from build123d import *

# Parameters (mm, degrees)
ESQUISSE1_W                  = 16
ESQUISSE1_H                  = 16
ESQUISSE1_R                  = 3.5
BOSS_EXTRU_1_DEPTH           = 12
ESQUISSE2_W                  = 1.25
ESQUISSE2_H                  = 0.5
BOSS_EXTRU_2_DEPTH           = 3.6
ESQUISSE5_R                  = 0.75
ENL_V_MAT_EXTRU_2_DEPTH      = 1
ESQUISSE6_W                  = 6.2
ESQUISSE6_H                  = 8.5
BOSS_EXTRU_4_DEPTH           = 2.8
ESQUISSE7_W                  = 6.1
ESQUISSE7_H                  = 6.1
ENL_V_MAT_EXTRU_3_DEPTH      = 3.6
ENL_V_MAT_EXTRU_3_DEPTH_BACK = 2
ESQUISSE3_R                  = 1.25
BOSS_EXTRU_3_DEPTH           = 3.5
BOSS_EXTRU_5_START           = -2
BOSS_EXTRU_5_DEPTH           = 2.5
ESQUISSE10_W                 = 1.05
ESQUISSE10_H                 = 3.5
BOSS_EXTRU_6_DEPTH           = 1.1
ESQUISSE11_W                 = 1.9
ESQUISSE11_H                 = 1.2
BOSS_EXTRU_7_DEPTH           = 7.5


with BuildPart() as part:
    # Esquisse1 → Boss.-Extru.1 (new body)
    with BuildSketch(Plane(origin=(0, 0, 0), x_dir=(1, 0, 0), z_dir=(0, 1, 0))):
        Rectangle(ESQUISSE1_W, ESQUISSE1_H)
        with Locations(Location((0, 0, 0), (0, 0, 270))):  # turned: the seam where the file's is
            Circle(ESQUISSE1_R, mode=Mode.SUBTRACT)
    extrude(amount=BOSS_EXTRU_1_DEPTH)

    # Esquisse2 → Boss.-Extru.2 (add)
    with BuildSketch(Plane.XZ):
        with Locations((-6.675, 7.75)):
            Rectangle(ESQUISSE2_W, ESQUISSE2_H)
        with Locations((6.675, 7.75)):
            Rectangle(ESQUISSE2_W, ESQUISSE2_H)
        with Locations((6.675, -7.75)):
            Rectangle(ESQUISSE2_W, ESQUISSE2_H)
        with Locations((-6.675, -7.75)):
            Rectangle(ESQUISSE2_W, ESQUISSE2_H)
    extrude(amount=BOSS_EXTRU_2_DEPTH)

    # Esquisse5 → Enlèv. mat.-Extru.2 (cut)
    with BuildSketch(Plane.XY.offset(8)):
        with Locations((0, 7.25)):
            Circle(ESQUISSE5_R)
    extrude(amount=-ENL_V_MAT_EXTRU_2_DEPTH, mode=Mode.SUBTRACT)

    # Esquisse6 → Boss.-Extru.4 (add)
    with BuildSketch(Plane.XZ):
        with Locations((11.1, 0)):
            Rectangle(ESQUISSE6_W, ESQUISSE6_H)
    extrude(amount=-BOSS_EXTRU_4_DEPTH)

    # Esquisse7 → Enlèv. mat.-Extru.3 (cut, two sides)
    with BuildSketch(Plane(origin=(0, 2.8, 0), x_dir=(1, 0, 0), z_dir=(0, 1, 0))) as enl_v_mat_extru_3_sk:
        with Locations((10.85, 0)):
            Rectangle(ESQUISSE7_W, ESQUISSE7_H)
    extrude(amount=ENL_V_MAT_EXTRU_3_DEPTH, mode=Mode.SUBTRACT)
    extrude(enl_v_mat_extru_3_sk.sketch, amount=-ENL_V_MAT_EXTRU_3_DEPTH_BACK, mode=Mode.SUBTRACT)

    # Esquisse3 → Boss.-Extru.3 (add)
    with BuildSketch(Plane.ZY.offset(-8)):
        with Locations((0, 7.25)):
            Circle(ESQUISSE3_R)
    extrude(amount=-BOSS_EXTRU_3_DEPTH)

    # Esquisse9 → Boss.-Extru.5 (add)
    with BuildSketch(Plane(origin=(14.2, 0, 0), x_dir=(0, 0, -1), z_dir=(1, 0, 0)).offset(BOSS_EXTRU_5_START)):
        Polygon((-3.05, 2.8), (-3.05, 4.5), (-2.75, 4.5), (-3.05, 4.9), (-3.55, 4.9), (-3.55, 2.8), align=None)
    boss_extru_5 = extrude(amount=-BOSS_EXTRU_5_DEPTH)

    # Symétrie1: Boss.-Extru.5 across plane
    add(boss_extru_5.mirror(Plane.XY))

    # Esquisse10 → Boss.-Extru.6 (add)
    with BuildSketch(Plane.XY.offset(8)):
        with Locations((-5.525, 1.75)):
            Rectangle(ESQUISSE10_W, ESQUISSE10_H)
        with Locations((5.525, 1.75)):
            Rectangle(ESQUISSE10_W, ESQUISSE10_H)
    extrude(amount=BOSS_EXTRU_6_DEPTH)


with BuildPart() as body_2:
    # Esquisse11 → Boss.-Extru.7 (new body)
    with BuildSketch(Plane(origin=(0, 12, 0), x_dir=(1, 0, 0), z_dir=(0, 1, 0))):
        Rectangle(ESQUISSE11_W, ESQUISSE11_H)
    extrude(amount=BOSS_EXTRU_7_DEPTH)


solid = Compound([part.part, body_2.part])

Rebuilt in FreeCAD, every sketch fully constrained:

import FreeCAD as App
import Part
import Sketcher

doc = App.newDocument("Part")
body = doc.addObject("PartDesign::Body", "Body")

sketch1 = doc.addObject("Sketcher::SketchObject", "Sketch")
body.addObject(sketch1)
sketch1.AttachmentSupport = (doc.XZ_Plane, [""])
sketch1.MapMode = "FlatFace"
sketch1.addGeometry([
    Part.LineSegment(App.Vector(-8, -8, 0), App.Vector(-8, 8, 0)),
    Part.LineSegment(App.Vector(-8, 8, 0), App.Vector(8, 8, 0)),
    Part.LineSegment(App.Vector(8, 8, 0), App.Vector(8, -8, 0)),
    Part.LineSegment(App.Vector(8, -8, 0), App.Vector(-8, -8, 0)),
    Part.Circle(App.Vector(0, 0, 0), App.Vector(0, 0, 1), 3.5),
], False)
sketch1.addConstraint([
    Sketcher.Constraint("Coincident", 0, 2, 1, 1),
    Sketcher.Constraint("Coincident", 1, 2, 2, 1),
    Sketcher.Constraint("Coincident", 2, 2, 3, 1),
    Sketcher.Constraint("Coincident", 3, 2, 0, 1),
    Sketcher.Constraint("Vertical", 0),
    Sketcher.Constraint("Horizontal", 1),
    Sketcher.Constraint("Vertical", 2),
    Sketcher.Constraint("Horizontal", 3),
    Sketcher.Constraint("Coincident", 4, 3, -1, 1),
    Sketcher.Constraint("Symmetric", 0, 2, 2, 2, -1, 1),
    Sketcher.Constraint("Equal", 3, 0),
    Sketcher.Constraint("Diameter", 4, 7.0),
    Sketcher.Constraint("DistanceX", 1, 1, 1, 2, 16.0),
])
pad1 = doc.addObject("PartDesign::Pad", "Pad")
body.addObject(pad1)
pad1.Profile = sketch1
pad1.Length = 12
pad1.Reversed = True

sketch2 = doc.addObject("Sketcher::SketchObject", "Sketch001")
body.addObject(sketch2)
sketch2.AttachmentSupport = (doc.XZ_Plane, [""])
sketch2.MapMode = "FlatFace"
sketch2.addGeometry([
    Part.LineSegment(App.Vector(-7.3, 8, 0), App.Vector(-7.3, 7.5, 0)),
    Part.LineSegment(App.Vector(-7.3, 7.5, 0), App.Vector(-6.05, 7.5, 0)),
    Part.LineSegment(App.Vector(-6.05, 7.5, 0), App.Vector(-6.05, 8, 0)),
    Part.LineSegment(App.Vector(-6.05, 8, 0), App.Vector(-7.3, 8, 0)),
    Part.LineSegment(App.Vector(6.05, 8, 0), App.Vector(6.05, 7.5, 0)),
    Part.LineSegment(App.Vector(6.05, 7.5, 0), App.Vector(7.3, 7.5, 0)),
    Part.LineSegment(App.Vector(7.3, 7.5, 0), App.Vector(7.3, 8, 0)),
    Part.LineSegment(App.Vector(7.3, 8, 0), App.Vector(6.05, 8, 0)),
    Part.LineSegment(App.Vector(6.05, -7.5, 0), App.Vector(6.05, -8, 0)),
    Part.LineSegment(App.Vector(6.05, -8, 0), App.Vector(7.3, -8, 0)),
    Part.LineSegment(App.Vector(7.3, -8, 0), App.Vector(7.3, -7.5, 0)),
    Part.LineSegment(App.Vector(7.3, -7.5, 0), App.Vector(6.05, -7.5, 0)),
    Part.LineSegment(App.Vector(-7.3, -7.5, 0), App.Vector(-7.3, -8, 0)),
    Part.LineSegment(App.Vector(-7.3, -8, 0), App.Vector(-6.05, -8, 0)),
    Part.LineSegment(App.Vector(-6.05, -8, 0), App.Vector(-6.05, -7.5, 0)),
    Part.LineSegment(App.Vector(-6.05, -7.5, 0), App.Vector(-7.3, -7.5, 0)),
], False)
sketch2.addConstraint([
    Sketcher.Constraint("Coincident", 0, 2, 1, 1),
    Sketcher.Constraint("Coincident", 1, 2, 2, 1),
    Sketcher.Constraint("Coincident", 2, 2, 3, 1),
    Sketcher.Constraint("Coincident", 3, 2, 0, 1),
    Sketcher.Constraint("Coincident", 4, 2, 5, 1),
    Sketcher.Constraint("Coincident", 5, 2, 6, 1),
    Sketcher.Constraint("Coincident", 6, 2, 7, 1),
    Sketcher.Constraint("Coincident", 7, 2, 4, 1),
    Sketcher.Constraint("Coincident", 8, 2, 9, 1),
    Sketcher.Constraint("Coincident", 9, 2, 10, 1),
    Sketcher.Constraint("Coincident", 10, 2, 11, 1),
    Sketcher.Constraint("Coincident", 11, 2, 8, 1),
    Sketcher.Constraint("Coincident", 12, 2, 13, 1),
    Sketcher.Constraint("Coincident", 13, 2, 14, 1),
    Sketcher.Constraint("Coincident", 14, 2, 15, 1),
    Sketcher.Constraint("Coincident", 15, 2, 12, 1),
    Sketcher.Constraint("Vertical", 0),
    Sketcher.Constraint("Horizontal", 1),
    Sketcher.Constraint("Vertical", 2),
    Sketcher.Constraint("Horizontal", 3),
    Sketcher.Constraint("Vertical", 4),
    Sketcher.Constraint("Horizontal", 5),
    Sketcher.Constraint("Vertical", 6),
    Sketcher.Constraint("Horizontal", 7),
    Sketcher.Constraint("Vertical", 8),
    Sketcher.Constraint("Horizontal", 9),
    Sketcher.Constraint("Vertical", 10),
    Sketcher.Constraint("Horizontal", 11),
    Sketcher.Constraint("Vertical", 12),
    Sketcher.Constraint("Horizontal", 13),
    Sketcher.Constraint("Vertical", 14),
    Sketcher.Constraint("Horizontal", 15),
    Sketcher.Constraint("Symmetric", 2, 2, 8, 2, -1, 1),
    Sketcher.Constraint("Symmetric", 0, 2, 10, 2, -1, 1),
    Sketcher.Constraint("Symmetric", 6, 2, 12, 2, -1, 1),
    Sketcher.Constraint("Symmetric", 4, 2, 14, 2, -1, 1),
    Sketcher.Constraint("Symmetric", 1, 2, 4, 2, -2),
    Sketcher.Constraint("Symmetric", 3, 2, 6, 2, -2),
    Sketcher.Constraint("DistanceY", 0, 2, 0, 1, 0.5),
    Sketcher.Constraint("DistanceY", -1, 1, 2, 2, 8.0),
    Sketcher.Constraint("DistanceX", 1, 1, 1, 2, 1.25),
    Sketcher.Constraint("DistanceX", 0, 2, -1, 1, 7.3),
])
pad2 = doc.addObject("PartDesign::Pad", "Pad001")
body.addObject(pad2)
pad2.Profile = sketch2
pad2.Length = 3.6

sketch3 = doc.addObject("Sketcher::SketchObject", "Sketch002")
body.addObject(sketch3)
sketch3.AttachmentSupport = (doc.XY_Plane, [""])
sketch3.MapMode = "FlatFace"
sketch3.AttachmentOffset = App.Placement(App.Vector(0, 0, 8), App.Rotation())
sketch3.addGeometry(Part.Circle(App.Vector(0, 7.25, 0), App.Vector(0, 0, 1), 0.75), False)
sketch3.addConstraint([
    Sketcher.Constraint("PointOnObject", 0, 3, -2),
    Sketcher.Constraint("Diameter", 0, 1.5),
    Sketcher.Constraint("DistanceY", -1, 1, 0, 3, 7.25),
])
pocket1 = doc.addObject("PartDesign::Pocket", "Pocket")
body.addObject(pocket1)
pocket1.Profile = sketch3
pocket1.Length = 1

sketch4 = doc.addObject("Sketcher::SketchObject", "Sketch003")
body.addObject(sketch4)
sketch4.AttachmentSupport = (doc.XZ_Plane, [""])
sketch4.MapMode = "FlatFace"
sketch4.addGeometry([
    Part.LineSegment(App.Vector(8, 4.25, 0), App.Vector(8, -4.25, 0)),
    Part.LineSegment(App.Vector(8, -4.25, 0), App.Vector(14.2, -4.25, 0)),
    Part.LineSegment(App.Vector(14.2, -4.25, 0), App.Vector(14.2, 4.25, 0)),
    Part.LineSegment(App.Vector(14.2, 4.25, 0), App.Vector(8, 4.25, 0)),
], False)
sketch4.addConstraint([
    Sketcher.Constraint("Coincident", 0, 2, 1, 1),
    Sketcher.Constraint("Coincident", 1, 2, 2, 1),
    Sketcher.Constraint("Coincident", 2, 2, 3, 1),
    Sketcher.Constraint("Coincident", 3, 2, 0, 1),
    Sketcher.Constraint("Vertical", 0),
    Sketcher.Constraint("Horizontal", 1),
    Sketcher.Constraint("Vertical", 2),
    Sketcher.Constraint("Horizontal", 3),
    Sketcher.Constraint("DistanceX", 1, 1, 1, 2, 6.2),
    Sketcher.Constraint("DistanceY", 0, 2, 0, 1, 8.5),
    Sketcher.Constraint("DistanceX", -1, 1, 0, 2, 8.0),
    Sketcher.Constraint("DistanceY", 0, 2, -1, 1, 4.25),
])
pad3 = doc.addObject("PartDesign::Pad", "Pad002")
body.addObject(pad3)
pad3.Profile = sketch4
pad3.Length = 2.8
pad3.Reversed = True

sketch5 = doc.addObject("Sketcher::SketchObject", "Sketch004")
body.addObject(sketch5)
sketch5.AttachmentSupport = (doc.XZ_Plane, [""])
sketch5.MapMode = "FlatFace"
sketch5.AttachmentOffset = App.Placement(App.Vector(0, 0, -2.8), App.Rotation())
sketch5.addGeometry([
    Part.LineSegment(App.Vector(7.8, -3.05, 0), App.Vector(7.8, 3.05, 0)),
    Part.LineSegment(App.Vector(7.8, 3.05, 0), App.Vector(13.9, 3.05, 0)),
    Part.LineSegment(App.Vector(13.9, 3.05, 0), App.Vector(13.9, -3.05, 0)),
    Part.LineSegment(App.Vector(13.9, -3.05, 0), App.Vector(7.8, -3.05, 0)),
], False)
sketch5.addConstraint([
    Sketcher.Constraint("Coincident", 0, 2, 1, 1),
    Sketcher.Constraint("Coincident", 1, 2, 2, 1),
    Sketcher.Constraint("Coincident", 2, 2, 3, 1),
    Sketcher.Constraint("Coincident", 3, 2, 0, 1),
    Sketcher.Constraint("Vertical", 0),
    Sketcher.Constraint("Horizontal", 1),
    Sketcher.Constraint("Vertical", 2),
    Sketcher.Constraint("Horizontal", 3),
    Sketcher.Constraint("Equal", 3, 0),
    Sketcher.Constraint("DistanceX", 1, 1, 1, 2, 6.1),
    Sketcher.Constraint("DistanceX", -1, 1, 0, 2, 7.8),
    Sketcher.Constraint("DistanceY", -1, 1, 0, 2, 3.05),
])
pocket2 = doc.addObject("PartDesign::Pocket", "Pocket001")
body.addObject(pocket2)
pocket2.Profile = sketch5
pocket2.Type = "TwoLengths"
pocket2.Length = 3.6
pocket2.Length2 = 2

sketch6 = doc.addObject("Sketcher::SketchObject", "Sketch005")
body.addObject(sketch6)
sketch6.AttachmentSupport = (doc.YZ_Plane, [""])
sketch6.MapMode = "FlatFace"
sketch6.AttachmentOffset = App.Placement(App.Vector(0, 0, 8), App.Rotation())
sketch6.addGeometry(Part.Circle(App.Vector(7.25, 0, 0), App.Vector(0, 0, 1), 1.25), False)
sketch6.addConstraint([
    Sketcher.Constraint("PointOnObject", 0, 3, -1),
    Sketcher.Constraint("Diameter", 0, 2.5),
    Sketcher.Constraint("DistanceX", -1, 1, 0, 3, 7.25),
])
pad4 = doc.addObject("PartDesign::Pad", "Pad003")
body.addObject(pad4)
pad4.Profile = sketch6
pad4.Length = 3.5

sketch7 = doc.addObject("Sketcher::SketchObject", "Sketch006")
body.addObject(sketch7)
sketch7.AttachmentSupport = (doc.YZ_Plane, [""])
sketch7.MapMode = "FlatFace"
sketch7.AttachmentOffset = App.Placement(App.Vector(0, 0, 12.2), App.Rotation())
sketch7.addGeometry([
    Part.LineSegment(App.Vector(2.8, 3.05, 0), App.Vector(4.5, 3.05, 0)),
    Part.LineSegment(App.Vector(4.5, 3.05, 0), App.Vector(4.5, 2.75, 0)),
    Part.LineSegment(App.Vector(4.5, 2.75, 0), App.Vector(4.9, 3.05, 0)),
    Part.LineSegment(App.Vector(4.9, 3.05, 0), App.Vector(4.9, 3.55, 0)),
    Part.LineSegment(App.Vector(4.9, 3.55, 0), App.Vector(2.8, 3.55, 0)),
    Part.LineSegment(App.Vector(2.8, 3.55, 0), App.Vector(2.8, 3.05, 0)),
], False)
sketch7.addConstraint([
    Sketcher.Constraint("Coincident", 0, 2, 1, 1),
    Sketcher.Constraint("Coincident", 1, 2, 2, 1),
    Sketcher.Constraint("Coincident", 2, 2, 3, 1),
    Sketcher.Constraint("Coincident", 3, 2, 4, 1),
    Sketcher.Constraint("Coincident", 4, 2, 5, 1),
    Sketcher.Constraint("Coincident", 5, 2, 0, 1),
    Sketcher.Constraint("Horizontal", 0),
    Sketcher.Constraint("Vertical", 1),
    Sketcher.Constraint("Vertical", 3),
    Sketcher.Constraint("Horizontal", 4),
    Sketcher.Constraint("Vertical", 5),
    Sketcher.Constraint("Horizontal", 0, 2, 2, 2),
    Sketcher.Constraint("DistanceX", 0, 1, 0, 2, 1.7),
    Sketcher.Constraint("DistanceX", 4, 2, 4, 1, 2.1),
    Sketcher.Constraint("DistanceY", 1, 2, 1, 1, 0.3),
    Sketcher.Constraint("DistanceY", 3, 1, 3, 2, 0.5),
    Sketcher.Constraint("DistanceX", -1, 1, 0, 2, 4.5),
    Sketcher.Constraint("DistanceY", -1, 1, 0, 2, 3.05),
])
pad5 = doc.addObject("PartDesign::Pad", "Pad004")
body.addObject(pad5)
pad5.Profile = sketch7
pad5.Length = 2.5
pad5.Reversed = True
doc.recompute()

mirrored = doc.addObject("PartDesign::Mirrored", "Mirrored")
body.addObject(mirrored)
mirrored.Originals = [pad5]
mirrored.MirrorPlane = (doc.XY_Plane, [""])
body.Tip = mirrored

sketch8 = doc.addObject("Sketcher::SketchObject", "Sketch007")
body.addObject(sketch8)
sketch8.AttachmentSupport = (doc.XY_Plane, [""])
sketch8.MapMode = "FlatFace"
sketch8.AttachmentOffset = App.Placement(App.Vector(0, 0, 8), App.Rotation())
sketch8.addGeometry([
    Part.LineSegment(App.Vector(-6.05, 3.5, 0), App.Vector(-6.05, 0, 0)),
    Part.LineSegment(App.Vector(-6.05, 0, 0), App.Vector(-5, 0, 0)),
    Part.LineSegment(App.Vector(-5, 0, 0), App.Vector(-5, 3.5, 0)),
    Part.LineSegment(App.Vector(-5, 3.5, 0), App.Vector(-6.05, 3.5, 0)),
    Part.LineSegment(App.Vector(5, 3.5, 0), App.Vector(5, 0, 0)),
    Part.LineSegment(App.Vector(5, 0, 0), App.Vector(6.05, 0, 0)),
    Part.LineSegment(App.Vector(6.05, 0, 0), App.Vector(6.05, 3.5, 0)),
    Part.LineSegment(App.Vector(6.05, 3.5, 0), App.Vector(5, 3.5, 0)),
], False)
sketch8.addConstraint([
    Sketcher.Constraint("Coincident", 0, 2, 1, 1),
    Sketcher.Constraint("Coincident", 1, 2, 2, 1),
    Sketcher.Constraint("Coincident", 2, 2, 3, 1),
    Sketcher.Constraint("Coincident", 3, 2, 0, 1),
    Sketcher.Constraint("Coincident", 4, 2, 5, 1),
    Sketcher.Constraint("Coincident", 5, 2, 6, 1),
    Sketcher.Constraint("Coincident", 6, 2, 7, 1),
    Sketcher.Constraint("Coincident", 7, 2, 4, 1),
    Sketcher.Constraint("Vertical", 0),
    Sketcher.Constraint("Horizontal", 1),
    Sketcher.Constraint("Vertical", 2),
    Sketcher.Constraint("Horizontal", 3),
    Sketcher.Constraint("Vertical", 4),
    Sketcher.Constraint("Horizontal", 5),
    Sketcher.Constraint("Vertical", 6),
    Sketcher.Constraint("Horizontal", 7),
    Sketcher.Constraint("Symmetric", 1, 2, 4, 2, -1, 1),
    Sketcher.Constraint("Symmetric", 0, 2, 5, 2, -2),
    Sketcher.Constraint("Horizontal", 3, 2, 6, 2),
    Sketcher.Constraint("DistanceY", 0, 2, 0, 1, 3.5),
    Sketcher.Constraint("DistanceX", 1, 2, -1, 1, 5.0),
    Sketcher.Constraint("DistanceX", 1, 1, 1, 2, 1.05),
])
pad6 = doc.addObject("PartDesign::Pad", "Pad005")
body.addObject(pad6)
pad6.Profile = sketch8
pad6.Length = 1.1
body2 = doc.addObject("PartDesign::Body", "Body001")

sketch9 = doc.addObject("Sketcher::SketchObject", "Sketch008")
body2.addObject(sketch9)
sketch9.AttachmentSupport = (doc.getObject("XZ_Plane001"), [""])
sketch9.MapMode = "FlatFace"
sketch9.AttachmentOffset = App.Placement(App.Vector(0, 0, -12), App.Rotation())
sketch9.addGeometry([
    Part.LineSegment(App.Vector(-0.95, -0.6, 0), App.Vector(-0.95, 0.6, 0)),
    Part.LineSegment(App.Vector(-0.95, 0.6, 0), App.Vector(0.95, 0.6, 0)),
    Part.LineSegment(App.Vector(0.95, 0.6, 0), App.Vector(0.95, -0.6, 0)),
    Part.LineSegment(App.Vector(0.95, -0.6, 0), App.Vector(-0.95, -0.6, 0)),
], False)
sketch9.addConstraint([
    Sketcher.Constraint("Coincident", 0, 2, 1, 1),
    Sketcher.Constraint("Coincident", 1, 2, 2, 1),
    Sketcher.Constraint("Coincident", 2, 2, 3, 1),
    Sketcher.Constraint("Coincident", 3, 2, 0, 1),
    Sketcher.Constraint("Vertical", 0),
    Sketcher.Constraint("Horizontal", 1),
    Sketcher.Constraint("Vertical", 2),
    Sketcher.Constraint("Horizontal", 3),
    Sketcher.Constraint("Symmetric", 0, 2, 2, 2, -1, 1),
    Sketcher.Constraint("DistanceX", 1, 1, 1, 2, 1.9),
    Sketcher.Constraint("DistanceY", 0, 1, 0, 2, 1.2),
])
pad7 = doc.addObject("PartDesign::Pad", "Pad006")
body2.addObject(pad7)
pad7.Profile = sketch9
pad7.Length = 7.5
pad7.Reversed = True

doc.recompute()
